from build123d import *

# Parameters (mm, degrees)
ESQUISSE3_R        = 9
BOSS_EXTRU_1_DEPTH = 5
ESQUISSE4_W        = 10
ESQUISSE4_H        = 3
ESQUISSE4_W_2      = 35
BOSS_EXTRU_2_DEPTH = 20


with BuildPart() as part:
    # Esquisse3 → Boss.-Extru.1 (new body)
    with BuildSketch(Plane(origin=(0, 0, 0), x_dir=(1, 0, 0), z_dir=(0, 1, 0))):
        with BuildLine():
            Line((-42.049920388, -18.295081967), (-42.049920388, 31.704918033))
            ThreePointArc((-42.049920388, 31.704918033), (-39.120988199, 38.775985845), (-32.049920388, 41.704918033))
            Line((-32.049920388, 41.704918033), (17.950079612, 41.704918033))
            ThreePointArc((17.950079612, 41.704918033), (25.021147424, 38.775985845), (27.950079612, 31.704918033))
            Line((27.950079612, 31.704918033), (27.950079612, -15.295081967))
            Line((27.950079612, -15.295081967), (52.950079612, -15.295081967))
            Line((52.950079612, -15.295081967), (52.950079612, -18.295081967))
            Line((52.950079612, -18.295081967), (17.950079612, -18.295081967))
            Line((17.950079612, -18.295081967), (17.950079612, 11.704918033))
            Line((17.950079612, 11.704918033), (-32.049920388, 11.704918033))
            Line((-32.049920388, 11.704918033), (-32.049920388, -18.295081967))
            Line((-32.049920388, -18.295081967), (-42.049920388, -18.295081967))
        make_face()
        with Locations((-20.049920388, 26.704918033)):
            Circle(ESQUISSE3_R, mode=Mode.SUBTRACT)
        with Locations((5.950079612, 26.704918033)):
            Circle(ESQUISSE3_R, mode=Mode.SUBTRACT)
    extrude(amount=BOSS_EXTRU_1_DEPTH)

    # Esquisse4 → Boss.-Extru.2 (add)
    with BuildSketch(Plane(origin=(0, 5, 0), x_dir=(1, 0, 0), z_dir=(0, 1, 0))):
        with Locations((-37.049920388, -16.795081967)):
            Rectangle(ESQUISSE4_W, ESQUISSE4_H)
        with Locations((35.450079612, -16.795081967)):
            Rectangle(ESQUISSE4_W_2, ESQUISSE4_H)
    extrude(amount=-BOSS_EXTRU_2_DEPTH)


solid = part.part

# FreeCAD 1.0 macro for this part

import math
import FreeCAD as App
import Part
import Sketcher

V = App.Vector

doc = App.newDocument("Part")
body = doc.addObject("PartDesign::Body", "Body")

# Sketch on XZ plane
sketch1 = doc.addObject("Sketcher::SketchObject", "Sketch")
body.addObject(sketch1)
sketch1.AttachmentSupport = (doc.XZ_Plane, [""])
sketch1.MapMode = "FlatFace"
sketch1.addGeometry([
    Part.LineSegment(V(-42, -31.7, 0), V(-42, 18.3, 0)),  # 0
    Part.LineSegment(V(-42, 18.3, 0), V(-32, 18.3, 0)),  # 1
    Part.LineSegment(V(-32, 18.3, 0), V(-32, -11.7, 0)),  # 2
    Part.LineSegment(V(-32, -11.7, 0), V(18, -11.7, 0)),  # 3
    Part.LineSegment(V(18, -11.7, 0), V(18, 18.3, 0)),  # 4
    Part.LineSegment(V(18, 18.3, 0), V(53, 18.3, 0)),  # 5
    Part.LineSegment(V(53, 18.3, 0), V(53, 15.3, 0)),  # 6
    Part.LineSegment(V(53, 15.3, 0), V(28, 15.3, 0)),  # 7
    Part.LineSegment(V(28, 15.3, 0), V(28, -31.7, 0)),  # 8
    Part.ArcOfCircle(Part.Circle(V(18, -31.7, 0), V(0, 0, 1), 10), math.radians(-90), math.radians(0)),  # 9
    Part.LineSegment(V(18, -41.7, 0), V(-32, -41.7, 0)),  # 10
    Part.ArcOfCircle(Part.Circle(V(-32, -31.7, 0), V(0, 0, 1), 10), math.radians(-180), math.radians(-90)),  # 11
    Part.Circle(V(6, -26.7, 0), V(0, 0, 1), 9),  # 12
    Part.Circle(V(-20, -26.7, 0), V(0, 0, 1), 9),  # 13
], False)
sketch1.addConstraint([
    Sketcher.Constraint("Coincident", 0, 2, 1, 1),
    Sketcher.Constraint("Coincident", 1, 2, 2, 1),
    Sketcher.Constraint("Coincident", 2, 2, 3, 1),
    Sketcher.Constraint("Coincident", 3, 2, 4, 1),
    Sketcher.Constraint("Coincident", 4, 2, 5, 1),
    Sketcher.Constraint("Coincident", 5, 2, 6, 1),
    Sketcher.Constraint("Coincident", 6, 2, 7, 1),
    Sketcher.Constraint("Coincident", 7, 2, 8, 1),
    Sketcher.Constraint("Tangent", 8, 2, 9, 2),
    Sketcher.Constraint("Tangent", 9, 1, 10, 1),
    Sketcher.Constraint("Tangent", 10, 2, 11, 2),
    Sketcher.Constraint("Tangent", 11, 1, 0, 1),
    Sketcher.Constraint("Vertical", 0),
    Sketcher.Constraint("Horizontal", 1),
    Sketcher.Constraint("Vertical", 2),
    Sketcher.Constraint("Horizontal", 3),
    Sketcher.Constraint("Vertical", 4),
    Sketcher.Constraint("Horizontal", 5),
    Sketcher.Constraint("Vertical", 6),
    Sketcher.Constraint("Horizontal", 7),
    Sketcher.Constraint("Vertical", 8),
    Sketcher.Constraint("Horizontal", 10),
    Sketcher.Constraint("Equal", 9, 11),
    Sketcher.Constraint("Equal", 12, 13),
    Sketcher.Constraint("Horizontal", 12, 3, 13, 3),
    Sketcher.Constraint("Horizontal", 1, 2, 4, 2),
    Sketcher.Constraint("Vertical", 11, 3, 1, 2),
    Sketcher.Constraint("Vertical", 9, 3, 3, 2),
    Sketcher.Constraint("Equal", 10, 0),
    Sketcher.Constraint("Diameter", 12, 18.0),
    Sketcher.Constraint("Radius", 9, 10.0),
    Sketcher.Constraint("DistanceX", 3, 1, 3, 2, 50.0),
    Sketcher.Constraint("DistanceX", 5, 1, 5, 2, 35.0),
    Sketcher.Constraint("DistanceY", 2, 2, 2, 1, 30.0),
    Sketcher.Constraint("DistanceY", 6, 2, 6, 1, 3.0),
    Sketcher.Constraint("DistanceX", 12, 3, 9, 3, 12.0),
    Sketcher.Constraint("DistanceY", 9, 3, 12, 3, 5.0),
    Sketcher.Constraint("DistanceX", 11, 3, 13, 3, 12.0),
    Sketcher.Constraint("DistanceX", -1, 1, 9, 3, 17.95008),
    Sketcher.Constraint("DistanceY", 9, 3, -1, 1, 31.704918),
])
pad1 = doc.addObject("PartDesign::Pad", "Pad")
body.addObject(pad1)
pad1.Profile = sketch1
pad1.Length = 5
pad1.Reversed = True

# Sketch on XZ plane
sketch2 = doc.addObject("Sketcher::SketchObject", "Sketch001")
body.addObject(sketch2)
sketch2.AttachmentSupport = (doc.XZ_Plane, [""])
sketch2.MapMode = "FlatFace"
sketch2.AttachmentOffset = App.Placement(V(0, 0, -5), App.Rotation())
sketch2.addGeometry([
    Part.LineSegment(V(-42, 15.3, 0), V(-42, 18.3, 0)),  # 0
    Part.LineSegment(V(-42, 18.3, 0), V(-32, 18.3, 0)),  # 1
    Part.LineSegment(V(-32, 18.3, 0), V(-32, 15.3, 0)),  # 2
    Part.LineSegment(V(-32, 15.3, 0), V(-42, 15.3, 0)),  # 3
    Part.LineSegment(V(18, 15.3, 0), V(18, 18.3, 0)),  # 4
    Part.LineSegment(V(18, 18.3, 0), V(53, 18.3, 0)),  # 5
    Part.LineSegment(V(53, 18.3, 0), V(53, 15.3, 0)),  # 6
    Part.LineSegment(V(53, 15.3, 0), V(18, 15.3, 0)),  # 7
], False)
sketch2.addConstraint([
    Sketcher.Constraint("Coincident", 0, 2, 1, 1),
    Sketcher.Constraint("Coincident", 1, 2, 2, 1),
    Sketcher.Constraint("Coincident", 2, 2, 3, 1),
    Sketcher.Constraint("Coincident", 3, 2, 0, 1),
    Sketcher.Constraint("Coincident", 4, 2, 5, 1),
    Sketcher.Constraint("Coincident", 5, 2, 6, 1),
    Sketcher.Constraint("Coincident", 6, 2, 7, 1),
    Sketcher.Constraint("Coincident", 7, 2, 4, 1),
    Sketcher.Constraint("Vertical", 0),
    Sketcher.Constraint("Horizontal", 1),
    Sketcher.Constraint("Vertical", 2),
    Sketcher.Constraint("Horizontal", 3),
    Sketcher.Constraint("Vertical", 4),
    Sketcher.Constraint("Horizontal", 5),
    Sketcher.Constraint("Vertical", 6),
    Sketcher.Constraint("Horizontal", 7),
    Sketcher.Constraint("Horizontal", 1, 2, 4, 2),
    Sketcher.Constraint("Horizontal", 3, 2, 6, 2),
    Sketcher.Constraint("DistanceX", 1, 1, 1, 2, 10.0),
    Sketcher.Constraint("DistanceX", 5, 1, 5, 2, 35.0),
    Sketcher.Constraint("DistanceY", 0, 1, 0, 2, 3.0),
    Sketcher.Constraint("DistanceX", 1, 2, 4, 2, 50.0),
    Sketcher.Constraint("DistanceX", 0, 2, -1, 1, 42.04992),
    Sketcher.Constraint("DistanceY", -1, 1, 0, 2, 18.295082),
])
pad2 = doc.addObject("PartDesign::Pad", "Pad001")
body.addObject(pad2)
pad2.Profile = sketch2
pad2.Length = 20

doc.recompute()
